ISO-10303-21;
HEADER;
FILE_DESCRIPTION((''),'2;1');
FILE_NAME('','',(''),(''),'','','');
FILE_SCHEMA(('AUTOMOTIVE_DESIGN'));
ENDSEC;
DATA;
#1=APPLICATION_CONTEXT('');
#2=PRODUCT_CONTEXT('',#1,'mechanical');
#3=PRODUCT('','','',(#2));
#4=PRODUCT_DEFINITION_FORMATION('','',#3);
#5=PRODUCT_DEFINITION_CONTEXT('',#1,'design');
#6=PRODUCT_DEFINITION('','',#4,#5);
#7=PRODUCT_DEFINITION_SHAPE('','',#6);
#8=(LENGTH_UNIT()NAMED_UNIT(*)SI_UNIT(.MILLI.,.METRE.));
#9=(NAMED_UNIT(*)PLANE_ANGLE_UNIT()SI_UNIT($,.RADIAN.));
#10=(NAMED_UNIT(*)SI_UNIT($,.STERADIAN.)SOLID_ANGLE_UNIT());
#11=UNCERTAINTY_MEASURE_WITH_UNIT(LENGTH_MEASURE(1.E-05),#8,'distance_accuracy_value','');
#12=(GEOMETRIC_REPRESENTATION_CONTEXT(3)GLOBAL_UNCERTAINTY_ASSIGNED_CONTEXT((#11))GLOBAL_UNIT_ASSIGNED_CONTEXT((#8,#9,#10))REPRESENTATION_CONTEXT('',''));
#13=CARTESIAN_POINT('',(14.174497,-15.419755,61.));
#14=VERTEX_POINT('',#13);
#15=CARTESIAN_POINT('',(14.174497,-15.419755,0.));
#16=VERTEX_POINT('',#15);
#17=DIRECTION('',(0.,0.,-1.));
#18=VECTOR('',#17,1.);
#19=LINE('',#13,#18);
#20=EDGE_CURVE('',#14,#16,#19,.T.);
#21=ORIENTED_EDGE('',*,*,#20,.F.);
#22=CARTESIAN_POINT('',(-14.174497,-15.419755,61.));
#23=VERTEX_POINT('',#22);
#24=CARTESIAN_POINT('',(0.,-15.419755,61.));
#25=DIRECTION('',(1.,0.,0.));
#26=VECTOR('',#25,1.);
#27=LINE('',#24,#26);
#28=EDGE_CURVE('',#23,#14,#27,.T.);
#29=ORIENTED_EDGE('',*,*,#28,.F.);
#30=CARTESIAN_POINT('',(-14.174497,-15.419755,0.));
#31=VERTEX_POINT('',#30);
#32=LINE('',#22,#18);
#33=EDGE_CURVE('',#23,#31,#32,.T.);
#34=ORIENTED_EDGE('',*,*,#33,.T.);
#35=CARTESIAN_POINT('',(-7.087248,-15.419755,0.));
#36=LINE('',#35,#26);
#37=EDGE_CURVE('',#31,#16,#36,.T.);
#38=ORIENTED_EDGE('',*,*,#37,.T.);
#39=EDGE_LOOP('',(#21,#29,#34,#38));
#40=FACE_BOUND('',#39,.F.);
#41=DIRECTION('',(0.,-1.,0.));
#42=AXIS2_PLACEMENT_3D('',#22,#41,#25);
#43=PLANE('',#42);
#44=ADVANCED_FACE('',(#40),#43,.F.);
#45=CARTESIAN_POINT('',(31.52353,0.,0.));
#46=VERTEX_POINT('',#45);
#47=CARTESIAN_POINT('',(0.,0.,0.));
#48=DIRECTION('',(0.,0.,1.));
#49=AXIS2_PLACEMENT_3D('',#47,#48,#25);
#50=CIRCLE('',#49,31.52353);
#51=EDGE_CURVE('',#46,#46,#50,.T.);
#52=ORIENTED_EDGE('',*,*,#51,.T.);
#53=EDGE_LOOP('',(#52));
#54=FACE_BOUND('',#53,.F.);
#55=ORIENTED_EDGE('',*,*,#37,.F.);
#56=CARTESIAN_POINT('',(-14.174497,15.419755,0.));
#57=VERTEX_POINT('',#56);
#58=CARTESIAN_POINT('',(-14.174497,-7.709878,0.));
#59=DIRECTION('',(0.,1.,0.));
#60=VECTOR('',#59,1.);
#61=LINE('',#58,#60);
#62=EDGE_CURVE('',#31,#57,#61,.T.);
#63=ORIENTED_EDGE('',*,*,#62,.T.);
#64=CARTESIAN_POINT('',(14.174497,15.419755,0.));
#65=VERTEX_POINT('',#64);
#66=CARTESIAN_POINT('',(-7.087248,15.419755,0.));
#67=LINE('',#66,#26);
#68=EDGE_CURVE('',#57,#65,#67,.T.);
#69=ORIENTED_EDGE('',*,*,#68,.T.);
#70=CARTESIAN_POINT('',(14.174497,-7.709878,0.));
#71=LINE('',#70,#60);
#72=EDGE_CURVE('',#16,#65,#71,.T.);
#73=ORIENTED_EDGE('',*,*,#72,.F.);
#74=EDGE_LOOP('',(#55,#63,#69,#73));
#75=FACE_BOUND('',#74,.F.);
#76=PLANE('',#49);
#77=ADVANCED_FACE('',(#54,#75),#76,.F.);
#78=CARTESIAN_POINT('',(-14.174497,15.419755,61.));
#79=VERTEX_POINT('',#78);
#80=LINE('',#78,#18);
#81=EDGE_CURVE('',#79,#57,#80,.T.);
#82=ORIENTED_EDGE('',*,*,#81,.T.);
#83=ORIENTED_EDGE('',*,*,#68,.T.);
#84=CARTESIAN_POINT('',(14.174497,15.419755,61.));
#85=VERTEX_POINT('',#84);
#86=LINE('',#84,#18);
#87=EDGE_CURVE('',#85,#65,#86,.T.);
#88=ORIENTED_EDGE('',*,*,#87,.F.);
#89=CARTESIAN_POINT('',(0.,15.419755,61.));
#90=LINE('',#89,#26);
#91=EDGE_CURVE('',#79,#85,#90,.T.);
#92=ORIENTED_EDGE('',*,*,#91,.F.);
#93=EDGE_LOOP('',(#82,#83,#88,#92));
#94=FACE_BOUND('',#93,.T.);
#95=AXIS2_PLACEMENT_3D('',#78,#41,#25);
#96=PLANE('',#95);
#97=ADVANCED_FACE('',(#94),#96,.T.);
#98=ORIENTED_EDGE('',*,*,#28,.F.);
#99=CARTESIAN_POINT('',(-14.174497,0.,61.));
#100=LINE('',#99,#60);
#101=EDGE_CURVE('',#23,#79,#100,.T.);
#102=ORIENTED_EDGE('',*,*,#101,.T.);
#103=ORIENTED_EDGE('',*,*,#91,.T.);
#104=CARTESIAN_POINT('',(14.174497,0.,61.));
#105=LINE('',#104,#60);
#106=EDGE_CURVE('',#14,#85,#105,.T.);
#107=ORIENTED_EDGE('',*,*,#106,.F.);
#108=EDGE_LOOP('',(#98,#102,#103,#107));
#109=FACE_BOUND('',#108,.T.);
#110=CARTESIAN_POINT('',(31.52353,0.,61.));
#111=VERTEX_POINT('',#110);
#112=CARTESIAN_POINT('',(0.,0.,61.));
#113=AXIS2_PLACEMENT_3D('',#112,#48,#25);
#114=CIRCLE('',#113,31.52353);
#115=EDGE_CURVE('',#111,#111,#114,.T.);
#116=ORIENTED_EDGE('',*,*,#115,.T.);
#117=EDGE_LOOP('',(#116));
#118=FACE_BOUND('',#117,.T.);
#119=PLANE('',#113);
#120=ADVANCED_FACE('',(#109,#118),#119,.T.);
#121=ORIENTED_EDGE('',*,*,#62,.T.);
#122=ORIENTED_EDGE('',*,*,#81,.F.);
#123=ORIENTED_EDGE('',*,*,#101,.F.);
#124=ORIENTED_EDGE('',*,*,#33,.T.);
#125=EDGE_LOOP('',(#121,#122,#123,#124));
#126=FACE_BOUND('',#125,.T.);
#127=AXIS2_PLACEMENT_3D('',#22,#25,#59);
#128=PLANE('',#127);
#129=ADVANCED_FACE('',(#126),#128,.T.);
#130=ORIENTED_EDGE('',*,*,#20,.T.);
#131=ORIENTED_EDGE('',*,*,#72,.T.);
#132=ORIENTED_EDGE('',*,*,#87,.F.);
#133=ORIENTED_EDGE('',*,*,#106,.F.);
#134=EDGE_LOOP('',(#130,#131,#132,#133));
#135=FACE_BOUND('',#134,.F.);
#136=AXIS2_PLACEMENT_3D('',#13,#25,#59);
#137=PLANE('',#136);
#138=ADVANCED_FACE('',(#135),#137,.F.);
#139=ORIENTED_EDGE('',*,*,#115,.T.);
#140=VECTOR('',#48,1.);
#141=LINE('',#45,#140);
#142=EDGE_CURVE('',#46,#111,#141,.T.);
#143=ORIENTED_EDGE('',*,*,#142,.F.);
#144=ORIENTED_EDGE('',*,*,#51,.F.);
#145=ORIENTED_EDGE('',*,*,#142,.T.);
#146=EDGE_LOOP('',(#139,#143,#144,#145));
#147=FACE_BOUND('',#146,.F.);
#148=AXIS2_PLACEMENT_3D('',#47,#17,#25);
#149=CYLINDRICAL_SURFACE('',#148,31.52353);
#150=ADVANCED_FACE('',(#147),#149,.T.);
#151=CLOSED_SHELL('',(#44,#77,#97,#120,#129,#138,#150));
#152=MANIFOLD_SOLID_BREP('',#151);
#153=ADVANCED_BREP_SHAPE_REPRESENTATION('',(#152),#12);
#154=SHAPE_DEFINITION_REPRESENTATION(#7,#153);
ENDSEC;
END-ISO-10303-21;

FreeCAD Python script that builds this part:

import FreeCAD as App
import Part
import Sketcher

V = App.Vector
Q = App.Units.Quantity


def add_polygon(sketch, points):
    """Adds a closed chain of lines whose ends are joined by coincident constraints."""
    first, n = sketch.GeometryCount, len(points)
    for a, b in zip(points, points[1:] + points[:1]):
        sketch.addGeometry(Part.LineSegment(App.Vector(*a, 0), App.Vector(*b, 0)), False)
    for i in range(n):
        sketch.addConstraint(Sketcher.Constraint("Coincident", first + i, 2, first + (i + 1) % n, 1))

doc = App.newDocument("Part")
body = doc.addObject("PartDesign::Body", "Body")

# Sketch on XY plane
sketch1 = body.newObject("Sketcher::SketchObject", "Sketch")
sketch1.AttachmentSupport = (doc.getObject("XY_Plane"), [""])
sketch1.MapMode = "FlatFace"
sketch1.addGeometry(Part.Circle(V(0, 0, 0), V(0, 0, 1), 32), False)
sketch1.addConstraint([
    Sketcher.Constraint("Coincident", 0, 3, -1, 1),
    Sketcher.Constraint("Diameter", 0, Q("63.047061 mm")),
])
pad1 = body.newObject("PartDesign::Pad", "Pad")
pad1.Profile = sketch1
pad1.Length = 25
body2 = doc.addObject("PartDesign::Body", "Body001")

# Sketch on XY plane
sketch2 = body2.newObject("Sketcher::SketchObject", "Sketch001")
sketch2.AttachmentSupport = (doc.getObject("XY_Plane001"), [""])
sketch2.MapMode = "FlatFace"
sketch2.addGeometry(Part.Circle(V(0, 0, 0), V(0, 0, 1), 32), False)
sketch2.addConstraint([
    Sketcher.Constraint("Coincident", 0, 3, -1, 1),
    Sketcher.Constraint("Diameter", 0, Q("63.047061 mm")),
])
pad2 = body2.newObject("PartDesign::Pad", "Pad001")
pad2.Profile = sketch2
pad2.Length = 61

# Sketch on XY plane
sketch3 = body2.newObject("Sketcher::SketchObject", "Sketch002")
sketch3.AttachmentSupport = (doc.getObject("XY_Plane001"), [""])
sketch3.MapMode = "FlatFace"
sketch3.AttachmentOffset = App.Placement(V(0, 0, 61), App.Rotation())
add_polygon(sketch3, [(-14, 15), (-14, -15), (14, -15), (14, 15)])  # lines 0-3
sketch3.addConstraint([
    Sketcher.Constraint("Vertical", 0),
    Sketcher.Constraint("Horizontal", 1),
    Sketcher.Constraint("Vertical", 2),
    Sketcher.Constraint("Horizontal", 3),
    Sketcher.Constraint("Symmetric", 0, 2, 2, 2, -1, 1),
    Sketcher.Constraint("DistanceY", 0, 2, 0, 1, Q("30.83951 mm")),
    Sketcher.Constraint("DistanceX", 1, 1, 1, 2, Q("28.348994 mm")),
])
pocket1 = body2.newObject("PartDesign::Pocket", "Pocket")
pocket1.Profile = sketch3
pocket1.Length = 75
body.Visibility = False

doc.recompute()
